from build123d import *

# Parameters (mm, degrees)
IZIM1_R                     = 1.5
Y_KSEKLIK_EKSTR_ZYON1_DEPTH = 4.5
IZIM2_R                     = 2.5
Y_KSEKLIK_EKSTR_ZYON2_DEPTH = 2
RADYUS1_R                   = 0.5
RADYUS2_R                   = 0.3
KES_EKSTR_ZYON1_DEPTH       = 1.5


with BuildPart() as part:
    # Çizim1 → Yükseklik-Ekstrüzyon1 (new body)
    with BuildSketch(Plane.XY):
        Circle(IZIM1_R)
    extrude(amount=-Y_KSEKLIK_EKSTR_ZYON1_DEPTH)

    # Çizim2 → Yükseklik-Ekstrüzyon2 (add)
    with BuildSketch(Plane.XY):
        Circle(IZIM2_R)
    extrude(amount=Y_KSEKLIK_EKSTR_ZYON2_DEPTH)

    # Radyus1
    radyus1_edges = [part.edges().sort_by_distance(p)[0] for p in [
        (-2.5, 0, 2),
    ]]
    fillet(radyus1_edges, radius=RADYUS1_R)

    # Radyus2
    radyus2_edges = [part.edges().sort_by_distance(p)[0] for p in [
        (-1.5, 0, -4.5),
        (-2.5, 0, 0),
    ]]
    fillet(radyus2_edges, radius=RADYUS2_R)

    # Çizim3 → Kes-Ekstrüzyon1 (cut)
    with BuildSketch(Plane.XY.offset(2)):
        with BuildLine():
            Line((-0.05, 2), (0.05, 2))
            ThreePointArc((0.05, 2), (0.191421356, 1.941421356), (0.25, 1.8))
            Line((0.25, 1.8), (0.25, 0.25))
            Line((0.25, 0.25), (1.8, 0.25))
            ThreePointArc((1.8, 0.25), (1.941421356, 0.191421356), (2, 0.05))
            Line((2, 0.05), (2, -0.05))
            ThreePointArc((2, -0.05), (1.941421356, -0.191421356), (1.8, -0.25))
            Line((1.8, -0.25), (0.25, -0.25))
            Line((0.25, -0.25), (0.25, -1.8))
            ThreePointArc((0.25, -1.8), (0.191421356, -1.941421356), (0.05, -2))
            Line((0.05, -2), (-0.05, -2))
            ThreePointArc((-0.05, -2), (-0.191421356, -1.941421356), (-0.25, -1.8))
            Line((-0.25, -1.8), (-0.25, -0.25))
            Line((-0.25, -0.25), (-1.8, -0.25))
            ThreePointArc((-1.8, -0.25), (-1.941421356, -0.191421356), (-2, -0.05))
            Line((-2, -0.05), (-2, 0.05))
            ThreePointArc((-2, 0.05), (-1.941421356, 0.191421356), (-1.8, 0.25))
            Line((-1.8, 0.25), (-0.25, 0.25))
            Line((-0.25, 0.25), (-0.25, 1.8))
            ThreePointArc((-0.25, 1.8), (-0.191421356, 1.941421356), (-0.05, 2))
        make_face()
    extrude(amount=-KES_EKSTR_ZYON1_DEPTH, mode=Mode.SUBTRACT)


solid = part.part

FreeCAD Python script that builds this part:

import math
import FreeCAD as App
import Part
import Sketcher
Q = App.Units.Quantity


def edges_at(feature, points):
    """Names of the edges that pass closest to the given points."""
    edges = feature.Shape.Edges
    near = lambda p: min(range(len(edges)), key=lambda i: edges[i].distToShape(Part.Vertex(*p))[0])
    return sorted({f"Edge{near(p) + 1}" for p in points})

doc = App.newDocument("Part")
body = doc.addObject("PartDesign::Body", "Body")

sketch1 = body.newObject("Sketcher::SketchObject", "Sketch")
sketch1.AttachmentSupport = (doc.getObject("XY_Plane"), [""])
sketch1.MapMode = "FlatFace"
sketch1.addGeometry(Part.Circle(App.Vector(0, 0, 0), App.Vector(0, 0, 1), 1.5), False)
sketch1.addConstraint([
    Sketcher.Constraint("Coincident", 0, 3, -1, 1),
    Sketcher.Constraint("Diameter", 0, Q("3 mm")),
])
pad1 = body.newObject("PartDesign::Pad", "Pad")
pad1.Profile = sketch1
pad1.Length = 4.5
pad1.Reversed = True

sketch2 = body.newObject("Sketcher::SketchObject", "Sketch001")
sketch2.AttachmentSupport = (doc.getObject("XY_Plane"), [""])
sketch2.MapMode = "FlatFace"
sketch2.addGeometry(Part.Circle(App.Vector(0, 0, 0), App.Vector(0, 0, 1), 2.5), False)
sketch2.addConstraint([
    Sketcher.Constraint("Coincident", 0, 3, -1, 1),
    Sketcher.Constraint("Diameter", 0, Q("5 mm")),
])
pad2 = body.newObject("PartDesign::Pad", "Pad001")
pad2.Profile = sketch2
pad2.Length = 2
doc.recompute()

fillet = body.newObject("PartDesign::Fillet", "Fillet")
fillet.Base = (pad2, edges_at(pad2, [(-2.5, 0, 2)]))
fillet.Radius = 0.5
doc.recompute()

fillet2 = body.newObject("PartDesign::Fillet", "Fillet001")
fillet2.Base = (fillet, edges_at(fillet, [(-1.5, 0, -4.5), (-2.5, 0, 0)]))
fillet2.Radius = 0.3

sketch3 = body.newObject("Sketcher::SketchObject", "Sketch002")
sketch3.AttachmentSupport = (doc.getObject("XY_Plane"), [""])
sketch3.MapMode = "FlatFace"
sketch3.AttachmentOffset = App.Placement(App.Vector(0, 0, 2), App.Rotation())
sketch3.addGeometry([
    Part.LineSegment(App.Vector(0.05, 2, 0), App.Vector(-0.05, 2, 0)),
    Part.ArcOfCircle(Part.Circle(App.Vector(-0.05, 1.8, 0), App.Vector(0, 0, 1), 0.2), math.radians(90), math.radians(180)),
    Part.LineSegment(App.Vector(-0.25, 1.8, 0), App.Vector(-0.25, 0.25, 0)),
    Part.LineSegment(App.Vector(-0.25, 0.25, 0), App.Vector(-1.8, 0.25, 0)),
    Part.ArcOfCircle(Part.Circle(App.Vector(-1.8, 0.05, 0), App.Vector(0, 0, 1), 0.2), math.radians(90), math.radians(180)),
    Part.LineSegment(App.Vector(-2, 0.05, 0), App.Vector(-2, -0.05, 0)),
    Part.ArcOfCircle(Part.Circle(App.Vector(-1.8, -0.05, 0), App.Vector(0, 0, 1), 0.2), math.radians(-180), math.radians(-90)),
    Part.LineSegment(App.Vector(-1.8, -0.25, 0), App.Vector(-0.25, -0.25, 0)),
    Part.LineSegment(App.Vector(-0.25, -0.25, 0), App.Vector(-0.25, -1.8, 0)),
    Part.ArcOfCircle(Part.Circle(App.Vector(-0.05, -1.8, 0), App.Vector(0, 0, 1), 0.2), math.radians(-180), math.radians(-90)),
    Part.LineSegment(App.Vector(-0.05, -2, 0), App.Vector(0.05, -2, 0)),
    Part.ArcOfCircle(Part.Circle(App.Vector(0.05, -1.8, 0), App.Vector(0, 0, 1), 0.2), math.radians(-90), math.radians(0)),
    Part.LineSegment(App.Vector(0.25, -1.8, 0), App.Vector(0.25, -0.25, 0)),
    Part.LineSegment(App.Vector(0.25, -0.25, 0), App.Vector(1.8, -0.25, 0)),
    Part.ArcOfCircle(Part.Circle(App.Vector(1.8, -0.05, 0), App.Vector(0, 0, 1), 0.2), math.radians(-90), math.radians(0)),
    Part.LineSegment(App.Vector(2, -0.05, 0), App.Vector(2, 0.05, 0)),
    Part.ArcOfCircle(Part.Circle(App.Vector(1.8, 0.05, 0), App.Vector(0, 0, 1), 0.2), math.radians(0), math.radians(90)),
    Part.LineSegment(App.Vector(1.8, 0.25, 0), App.Vector(0.25, 0.25, 0)),
    Part.LineSegment(App.Vector(0.25, 0.25, 0), App.Vector(0.25, 1.8, 0)),
    Part.ArcOfCircle(Part.Circle(App.Vector(0.05, 1.8, 0), App.Vector(0, 0, 1), 0.2), math.radians(0), math.radians(90)),
], False)
sketch3.addConstraint([
    Sketcher.Constraint("Tangent", 0, 2, 1, 1),
    Sketcher.Constraint("Tangent", 1, 2, 2, 1),
    Sketcher.Constraint("Coincident", 2, 2, 3, 1),
    Sketcher.Constraint("Tangent", 3, 2, 4, 1),
    Sketcher.Constraint("Tangent", 4, 2, 5, 1),
    Sketcher.Constraint("Tangent", 5, 2, 6, 1),
    Sketcher.Constraint("Tangent", 6, 2, 7, 1),
    Sketcher.Constraint("Coincident", 7, 2, 8, 1),
    Sketcher.Constraint("Tangent", 8, 2, 9, 1),
    Sketcher.Constraint("Tangent", 9, 2, 10, 1),
    Sketcher.Constraint("Tangent", 10, 2, 11, 1),
    Sketcher.Constraint("Tangent", 11, 2, 12, 1),
    Sketcher.Constraint("Coincident", 12, 2, 13, 1),
    Sketcher.Constraint("Tangent", 13, 2, 14, 1),
    Sketcher.Constraint("Tangent", 14, 2, 15, 1),
    Sketcher.Constraint("Tangent", 15, 2, 16, 1),
    Sketcher.Constraint("Tangent", 16, 2, 17, 1),
    Sketcher.Constraint("Coincident", 17, 2, 18, 1),
    Sketcher.Constraint("Tangent", 18, 2, 19, 1),
    Sketcher.Constraint("Tangent", 19, 2, 0, 1),
    Sketcher.Constraint("Horizontal", 0),
    Sketcher.Constraint("Vertical", 2),
    Sketcher.Constraint("Horizontal", 3),
    Sketcher.Constraint("Vertical", 5),
    Sketcher.Constraint("Horizontal", 7),
    Sketcher.Constraint("Vertical", 8),
    Sketcher.Constraint("Horizontal", 10),
    Sketcher.Constraint("Vertical", 12),
    Sketcher.Constraint("Horizontal", 13),
    Sketcher.Constraint("Vertical", 15),
    Sketcher.Constraint("Horizontal", 17),
    Sketcher.Constraint("Vertical", 18),
    Sketcher.Constraint("Equal", 1, 4),
    Sketcher.Constraint("Equal", 4, 6),
    Sketcher.Constraint("Equal", 6, 9),
    Sketcher.Constraint("Equal", 9, 11),
    Sketcher.Constraint("Equal", 11, 14),
    Sketcher.Constraint("Equal", 14, 16),
    Sketcher.Constraint("Equal", 16, 19),
    Sketcher.Constraint("Symmetric", 1, 3, 11, 3, -1, 1),
    Sketcher.Constraint("Symmetric", 4, 3, 14, 3, -1, 1),
    Sketcher.Constraint("Symmetric", 7, 2, 17, 2, -1, 1),
    Sketcher.Constraint("Symmetric", 7, 2, 12, 2, -2),
    Sketcher.Constraint("Equal", 17, 2),
    Sketcher.Constraint("Equal", 10, 5),
    Sketcher.Constraint("Radius", 1, Q("0.2 mm")),
    Sketcher.Constraint("DistanceX", 0, 2, 0, 1, Q("0.1 mm")),
    Sketcher.Constraint("DistanceY", -1, 1, 0, 2, Q("2 mm")),
])
pocket1 = body.newObject("PartDesign::Pocket", "Pocket")
pocket1.Profile = sketch3
pocket1.Length = 1.5

doc.recompute()
